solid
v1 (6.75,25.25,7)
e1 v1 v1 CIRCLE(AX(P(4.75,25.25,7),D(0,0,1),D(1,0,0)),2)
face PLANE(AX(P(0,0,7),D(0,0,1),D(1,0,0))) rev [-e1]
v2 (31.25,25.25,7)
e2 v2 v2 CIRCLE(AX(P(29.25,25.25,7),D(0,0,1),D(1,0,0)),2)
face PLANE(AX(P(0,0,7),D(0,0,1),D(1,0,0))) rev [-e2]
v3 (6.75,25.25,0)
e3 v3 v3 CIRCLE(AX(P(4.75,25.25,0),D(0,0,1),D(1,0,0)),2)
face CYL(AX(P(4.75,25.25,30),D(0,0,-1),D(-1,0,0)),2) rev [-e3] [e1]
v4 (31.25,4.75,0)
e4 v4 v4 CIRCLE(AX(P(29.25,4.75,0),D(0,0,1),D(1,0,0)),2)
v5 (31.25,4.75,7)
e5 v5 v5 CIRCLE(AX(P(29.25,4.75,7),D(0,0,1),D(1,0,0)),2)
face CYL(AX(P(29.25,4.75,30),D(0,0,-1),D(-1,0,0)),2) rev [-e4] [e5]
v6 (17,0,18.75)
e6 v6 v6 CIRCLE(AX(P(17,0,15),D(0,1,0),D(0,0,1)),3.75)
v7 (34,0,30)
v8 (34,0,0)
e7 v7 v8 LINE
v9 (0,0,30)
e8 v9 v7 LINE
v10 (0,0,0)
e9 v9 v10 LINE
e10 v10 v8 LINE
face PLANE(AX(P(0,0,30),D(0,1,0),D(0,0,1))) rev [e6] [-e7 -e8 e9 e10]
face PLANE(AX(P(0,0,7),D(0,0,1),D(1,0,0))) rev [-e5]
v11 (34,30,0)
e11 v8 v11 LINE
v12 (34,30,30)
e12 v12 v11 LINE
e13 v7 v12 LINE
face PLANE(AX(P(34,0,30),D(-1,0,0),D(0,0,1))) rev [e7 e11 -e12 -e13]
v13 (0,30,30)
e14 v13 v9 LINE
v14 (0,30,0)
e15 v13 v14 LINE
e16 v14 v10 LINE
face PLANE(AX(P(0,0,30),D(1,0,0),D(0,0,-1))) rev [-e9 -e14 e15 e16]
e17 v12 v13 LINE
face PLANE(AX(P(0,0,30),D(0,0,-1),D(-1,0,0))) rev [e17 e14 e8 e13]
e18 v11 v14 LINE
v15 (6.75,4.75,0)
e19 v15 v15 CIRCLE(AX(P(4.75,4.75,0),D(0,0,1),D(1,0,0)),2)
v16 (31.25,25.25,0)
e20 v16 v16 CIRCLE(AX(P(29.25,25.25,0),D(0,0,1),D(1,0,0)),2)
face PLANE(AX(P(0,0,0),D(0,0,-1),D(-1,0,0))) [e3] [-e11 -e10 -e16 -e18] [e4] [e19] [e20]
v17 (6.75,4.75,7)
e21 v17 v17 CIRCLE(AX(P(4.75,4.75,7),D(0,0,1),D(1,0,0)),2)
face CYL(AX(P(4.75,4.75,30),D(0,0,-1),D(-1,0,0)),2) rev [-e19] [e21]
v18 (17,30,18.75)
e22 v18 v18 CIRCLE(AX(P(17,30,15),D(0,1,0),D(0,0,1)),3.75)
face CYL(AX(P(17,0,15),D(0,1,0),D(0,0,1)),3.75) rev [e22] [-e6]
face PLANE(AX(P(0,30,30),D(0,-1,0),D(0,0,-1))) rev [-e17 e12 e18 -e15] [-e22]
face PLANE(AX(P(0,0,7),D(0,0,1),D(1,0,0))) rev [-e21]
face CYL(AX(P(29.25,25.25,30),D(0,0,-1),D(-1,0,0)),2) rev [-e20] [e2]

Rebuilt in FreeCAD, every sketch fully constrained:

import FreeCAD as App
import Part
import Sketcher
Q = App.Units.Quantity


def add_polygon(sketch, points):
    """Adds a closed chain of lines whose ends are joined by coincident constraints."""
    first, n = sketch.GeometryCount, len(points)
    for a, b in zip(points, points[1:] + points[:1]):
        sketch.addGeometry(Part.LineSegment(App.Vector(*a, 0), App.Vector(*b, 0)), False)
    for i in range(n):
        sketch.addConstraint(Sketcher.Constraint("Coincident", first + i, 2, first + (i + 1) % n, 1))

doc = App.newDocument("Part")
body = doc.addObject("PartDesign::Body", "Body")

sketch1 = doc.addObject("Sketcher::SketchObject", "Sketch")
body.addObject(sketch1)
sketch1.AttachmentSupport = (doc.XY_Plane, [""])
sketch1.MapMode = "FlatFace"
add_polygon(sketch1, [(0, 30), (0, 0), (34, 0), (34, 30)])
sketch1.addGeometry(Part.Circle(App.Vector(4.8, 4.8, 0), App.Vector(0, 0, 1), 2), False)
sketch1.addGeometry(Part.Circle(App.Vector(29.2, 4.8, 0), App.Vector(0, 0, 1), 2), False)
sketch1.addGeometry(Part.Circle(App.Vector(4.8, 25.2, 0), App.Vector(0, 0, 1), 2), False)
sketch1.addGeometry(Part.Circle(App.Vector(29.2, 25.2, 0), App.Vector(0, 0, 1), 2), False)
sketch1.addConstraint([
    Sketcher.Constraint("Vertical", 0),
    Sketcher.Constraint("Horizontal", 1),
    Sketcher.Constraint("Vertical", 2),
    Sketcher.Constraint("Horizontal", 3),
    Sketcher.Constraint("Coincident", 0, 2, -1, 1),
    Sketcher.Constraint("Equal", 4, 5),
    Sketcher.Constraint("Equal", 5, 6),
    Sketcher.Constraint("Equal", 6, 7),
    Sketcher.Constraint("Horizontal", 4, 3, 5, 3),
    Sketcher.Constraint("Horizontal", 6, 3, 7, 3),
    Sketcher.Constraint("Vertical", 4, 3, 6, 3),
    Sketcher.Constraint("Vertical", 5, 3, 7, 3),
    Sketcher.Constraint("Diameter", 4, Q("4 mm")),
    Sketcher.Constraint("DistanceX", 1, 1, 1, 2, Q("34 mm")),
    Sketcher.Constraint("DistanceY", 0, 2, 0, 1, Q("30 mm")),
    Sketcher.Constraint("DistanceX", 4, 3, 5, 3, Q("24.5 mm")),
    Sketcher.Constraint("DistanceY", 4, 3, 6, 3, Q("20.5 mm")),
    Sketcher.Constraint("DistanceX", -1, 1, 4, 3, Q("4.75 mm")),
    Sketcher.Constraint("DistanceY", -1, 1, 4, 3, Q("4.75 mm")),
])
pad1 = doc.addObject("PartDesign::Pad", "Pad")
body.addObject(pad1)
pad1.Profile = sketch1
pad1.Length = 30

sketch2 = doc.addObject("Sketcher::SketchObject", "Sketch001")
body.addObject(sketch2)
sketch2.AttachmentSupport = (doc.XY_Plane, [""])
sketch2.MapMode = "FlatFace"
sketch2.AttachmentOffset = App.Placement(App.Vector(0, 0, 30), App.Rotation())
add_polygon(sketch2, [(0, 30), (0, 0), (34, 0), (34, 30)])
sketch2.addConstraint([
    Sketcher.Constraint("Vertical", 0),
    Sketcher.Constraint("Horizontal", 1),
    Sketcher.Constraint("Vertical", 2),
    Sketcher.Constraint("Horizontal", 3),
    Sketcher.Constraint("Coincident", 0, 2, -1, 1),
    Sketcher.Constraint("DistanceX", 1, 1, 1, 2, Q("34 mm")),
    Sketcher.Constraint("DistanceY", 0, 2, 0, 1, Q("30 mm")),
])
pad2 = doc.addObject("PartDesign::Pad", "Pad001")
body.addObject(pad2)
pad2.Profile = sketch2
pad2.Length = 23
pad2.Reversed = True

sketch3 = doc.addObject("Sketcher::SketchObject", "Sketch002")
body.addObject(sketch3)
sketch3.AttachmentSupport = (doc.XZ_Plane, [""])
sketch3.MapMode = "FlatFace"
sketch3.AttachmentOffset = App.Placement(App.Vector(0, 0, -30), App.Rotation())
sketch3.addGeometry(Part.Circle(App.Vector(17, 15, 0), App.Vector(0, 0, 1), 3.8), False)
sketch3.addConstraint([
    Sketcher.Constraint("Diameter", 0, Q("7.5 mm")),
    Sketcher.Constraint("DistanceX", -1, 1, 0, 3, Q("17 mm")),
    Sketcher.Constraint("DistanceY", -1, 1, 0, 3, Q("15 mm")),
])
pocket1 = doc.addObject("PartDesign::Pocket", "Pocket")
body.addObject(pocket1)
pocket1.Profile = sketch3
pocket1.Length = 30
pocket1.Reversed = True

doc.recompute()
